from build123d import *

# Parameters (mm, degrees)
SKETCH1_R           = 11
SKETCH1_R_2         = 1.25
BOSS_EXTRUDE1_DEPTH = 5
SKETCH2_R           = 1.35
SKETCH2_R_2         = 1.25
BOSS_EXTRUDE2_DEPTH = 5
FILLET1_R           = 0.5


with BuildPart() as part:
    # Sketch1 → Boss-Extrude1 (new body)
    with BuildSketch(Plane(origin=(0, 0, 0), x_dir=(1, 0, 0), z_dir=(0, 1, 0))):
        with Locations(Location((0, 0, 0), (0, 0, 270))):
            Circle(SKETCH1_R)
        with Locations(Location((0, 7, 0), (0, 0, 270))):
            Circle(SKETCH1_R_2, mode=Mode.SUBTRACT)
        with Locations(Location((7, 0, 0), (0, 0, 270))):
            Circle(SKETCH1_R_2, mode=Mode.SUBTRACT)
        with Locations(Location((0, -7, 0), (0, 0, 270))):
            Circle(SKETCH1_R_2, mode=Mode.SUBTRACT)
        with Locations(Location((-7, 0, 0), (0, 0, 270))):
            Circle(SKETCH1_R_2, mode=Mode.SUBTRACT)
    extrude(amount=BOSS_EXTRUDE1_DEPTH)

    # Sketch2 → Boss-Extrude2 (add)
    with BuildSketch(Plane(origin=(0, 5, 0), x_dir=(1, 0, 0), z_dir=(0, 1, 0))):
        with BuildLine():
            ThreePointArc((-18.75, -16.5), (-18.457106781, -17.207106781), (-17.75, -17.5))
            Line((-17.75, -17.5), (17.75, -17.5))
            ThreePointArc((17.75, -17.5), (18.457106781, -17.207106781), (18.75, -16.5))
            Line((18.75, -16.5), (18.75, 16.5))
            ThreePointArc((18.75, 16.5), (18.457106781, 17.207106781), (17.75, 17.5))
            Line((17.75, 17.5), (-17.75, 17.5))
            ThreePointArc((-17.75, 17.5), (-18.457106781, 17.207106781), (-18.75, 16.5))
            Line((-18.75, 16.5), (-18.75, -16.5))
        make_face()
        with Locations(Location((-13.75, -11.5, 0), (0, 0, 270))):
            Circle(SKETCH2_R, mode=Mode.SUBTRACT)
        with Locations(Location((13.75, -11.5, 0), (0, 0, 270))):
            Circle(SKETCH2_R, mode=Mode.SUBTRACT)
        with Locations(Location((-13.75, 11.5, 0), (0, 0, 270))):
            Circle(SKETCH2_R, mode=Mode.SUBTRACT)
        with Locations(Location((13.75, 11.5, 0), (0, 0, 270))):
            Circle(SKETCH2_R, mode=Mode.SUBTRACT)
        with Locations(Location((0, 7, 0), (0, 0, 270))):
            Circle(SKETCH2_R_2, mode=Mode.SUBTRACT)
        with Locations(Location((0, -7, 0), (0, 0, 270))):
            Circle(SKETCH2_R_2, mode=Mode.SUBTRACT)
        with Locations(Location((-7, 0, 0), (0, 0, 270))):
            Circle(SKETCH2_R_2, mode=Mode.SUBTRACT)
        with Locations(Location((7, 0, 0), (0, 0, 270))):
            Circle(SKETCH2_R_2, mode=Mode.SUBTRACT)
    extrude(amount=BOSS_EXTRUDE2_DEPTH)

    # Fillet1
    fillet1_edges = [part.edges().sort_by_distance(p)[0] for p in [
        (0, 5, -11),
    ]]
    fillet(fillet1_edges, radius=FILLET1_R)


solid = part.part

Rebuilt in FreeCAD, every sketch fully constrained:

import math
import FreeCAD as App
import Part
import Sketcher
from FreeCAD import Vector
Q = App.Units.Quantity


def edges_at(feature, points):
    """Names of the edges that pass closest to the given points."""
    edges = feature.Shape.Edges
    near = lambda p: min(range(len(edges)), key=lambda i: edges[i].distToShape(Part.Vertex(*p))[0])
    return sorted({f"Edge{near(p) + 1}" for p in points})

doc = App.newDocument("Part")
body = doc.addObject("PartDesign::Body", "Body")

sketch1 = body.newObject("Sketcher::SketchObject", "Sketch")
sketch1.AttachmentSupport = (doc.getObject("XZ_Plane"), [""])
sketch1.MapMode = "FlatFace"
sketch1.addGeometry([
    Part.Circle(Vector(0, 0, 0), Vector(0, 0, 1), 11),
    Part.Circle(Vector(0, -7, 0), Vector(0, 0, 1), 1.2),
    Part.Circle(Vector(-7, 0, 0), Vector(0, 0, 1), 1.2),
    Part.Circle(Vector(0, 7, 0), Vector(0, 0, 1), 1.2),
    Part.Circle(Vector(7, 0, 0), Vector(0, 0, 1), 1.2),
], False)
sketch1.addConstraint([
    Sketcher.Constraint("Coincident", 0, 3, -1, 1),
    Sketcher.Constraint("Equal", 1, 2),
    Sketcher.Constraint("Equal", 2, 3),
    Sketcher.Constraint("Equal", 3, 4),
    Sketcher.Constraint("Symmetric", 1, 3, 3, 3, -1, 1),
    Sketcher.Constraint("Symmetric", 2, 3, 4, 3, -1, 1),
    Sketcher.Constraint("PointOnObject", 1, 3, -2),
    Sketcher.Constraint("PointOnObject", 2, 3, -1),
    Sketcher.Constraint("Diameter", 0, Q("22 mm")),
    Sketcher.Constraint("Diameter", 1, Q("2.5 mm")),
    Sketcher.Constraint("DistanceY", 1, 3, -1, 1, Q("7 mm")),
    Sketcher.Constraint("DistanceX", 2, 3, -1, 1, Q("7 mm")),
])
pad1 = body.newObject("PartDesign::Pad", "Pad")
pad1.Profile = sketch1
pad1.Length = 5
pad1.Reversed = True

sketch2 = body.newObject("Sketcher::SketchObject", "Sketch001")
sketch2.AttachmentSupport = (doc.getObject("XZ_Plane"), [""])
sketch2.MapMode = "FlatFace"
sketch2.AttachmentOffset = App.Placement(Vector(0, 0, -5), App.Rotation())
sketch2.addGeometry([
    Part.ArcOfCircle(Part.Circle(Vector(-17.7, 16.5, 0), Vector(0, 0, 1), 1), math.radians(90), math.radians(180)),
    Part.LineSegment(Vector(-17.8, 17.5, 0), Vector(17.8, 17.5, 0)),
    Part.ArcOfCircle(Part.Circle(Vector(17.7, 16.5, 0), Vector(0, 0, 1), 1), math.radians(0), math.radians(90)),
    Part.LineSegment(Vector(18.8, 16.5, 0), Vector(18.8, -16.5, 0)),
    Part.ArcOfCircle(Part.Circle(Vector(17.7, -16.5, 0), Vector(0, 0, 1), 1), math.radians(-90), math.radians(0)),
    Part.LineSegment(Vector(17.8, -17.5, 0), Vector(-17.8, -17.5, 0)),
    Part.ArcOfCircle(Part.Circle(Vector(-17.7, -16.5, 0), Vector(0, 0, 1), 1), math.radians(-180), math.radians(-90)),
    Part.LineSegment(Vector(-18.8, -16.5, 0), Vector(-18.8, 16.5, 0)),
    Part.Circle(Vector(-13.8, 11.5, 0), Vector(0, 0, 1), 1.4),
    Part.Circle(Vector(0, 7, 0), Vector(0, 0, 1), 1.2),
    Part.Circle(Vector(13.8, 11.5, 0), Vector(0, 0, 1), 1.4),
    Part.Circle(Vector(-7, 0, 0), Vector(0, 0, 1), 1.2),
    Part.Circle(Vector(-13.8, -11.5, 0), Vector(0, 0, 1), 1.4),
    Part.Circle(Vector(7, 0, 0), Vector(0, 0, 1), 1.2),
    Part.Circle(Vector(0, -7, 0), Vector(0, 0, 1), 1.2),
    Part.Circle(Vector(13.8, -11.5, 0), Vector(0, 0, 1), 1.4),
], False)
sketch2.addConstraint([
    Sketcher.Constraint("Tangent", 0, 1, 1, 1),
    Sketcher.Constraint("Tangent", 1, 2, 2, 2),
    Sketcher.Constraint("Tangent", 2, 1, 3, 1),
    Sketcher.Constraint("Tangent", 3, 2, 4, 2),
    Sketcher.Constraint("Tangent", 4, 1, 5, 1),
    Sketcher.Constraint("Tangent", 5, 2, 6, 2),
    Sketcher.Constraint("Tangent", 6, 1, 7, 1),
    Sketcher.Constraint("Tangent", 7, 2, 0, 2),
    Sketcher.Constraint("Horizontal", 1),
    Sketcher.Constraint("Vertical", 3),
    Sketcher.Constraint("Horizontal", 5),
    Sketcher.Constraint("Vertical", 7),
    Sketcher.Constraint("Equal", 0, 2),
    Sketcher.Constraint("Equal", 2, 4),
    Sketcher.Constraint("Equal", 4, 6),
    Sketcher.Constraint("Equal", 8, 10),
    Sketcher.Constraint("Equal", 9, 11),
    Sketcher.Constraint("Equal", 10, 12),
    Sketcher.Constraint("Equal", 11, 13),
    Sketcher.Constraint("Equal", 13, 14),
    Sketcher.Constraint("Equal", 12, 15),
    Sketcher.Constraint("Symmetric", 0, 3, 4, 3, -1, 1),
    Sketcher.Constraint("Symmetric", 10, 3, 12, 3, -1, 1),
    Sketcher.Constraint("Symmetric", 11, 3, 13, 3, -1, 1),
    Sketcher.Constraint("Symmetric", 9, 3, 14, 3, -1, 1),
    Sketcher.Constraint("Symmetric", 8, 3, 15, 3, -1, 1),
    Sketcher.Constraint("Symmetric", 8, 3, 10, 3, -2),
    Sketcher.Constraint("PointOnObject", 9, 3, -2),
    Sketcher.Constraint("PointOnObject", 11, 3, -1),
    Sketcher.Constraint("Radius", 0, Q("1 mm")),
    Sketcher.Constraint("Diameter", 8, Q("2.7 mm")),
    Sketcher.Constraint("Diameter", 9, Q("2.5 mm")),
    Sketcher.Constraint("DistanceY", 3, 2, 3, 1, Q("33 mm")),
    Sketcher.Constraint("DistanceX", 1, 1, 1, 2, Q("35.5 mm")),
    Sketcher.Constraint("DistanceY", -1, 1, 9, 3, Q("7 mm")),
    Sketcher.Constraint("DistanceX", 11, 3, -1, 1, Q("7 mm")),
    Sketcher.Constraint("DistanceX", 0, 3, 8, 3, Q("4 mm")),
    Sketcher.Constraint("DistanceY", 8, 3, 0, 3, Q("5 mm")),
])
pad2 = body.newObject("PartDesign::Pad", "Pad001")
pad2.Profile = sketch2
pad2.Length = 5
pad2.Reversed = True
doc.recompute()

fillet = body.newObject("PartDesign::Fillet", "Fillet")
fillet.Base = (pad2, edges_at(pad2, [(0, 5, -11)]))
fillet.Radius = 0.5

doc.recompute()
